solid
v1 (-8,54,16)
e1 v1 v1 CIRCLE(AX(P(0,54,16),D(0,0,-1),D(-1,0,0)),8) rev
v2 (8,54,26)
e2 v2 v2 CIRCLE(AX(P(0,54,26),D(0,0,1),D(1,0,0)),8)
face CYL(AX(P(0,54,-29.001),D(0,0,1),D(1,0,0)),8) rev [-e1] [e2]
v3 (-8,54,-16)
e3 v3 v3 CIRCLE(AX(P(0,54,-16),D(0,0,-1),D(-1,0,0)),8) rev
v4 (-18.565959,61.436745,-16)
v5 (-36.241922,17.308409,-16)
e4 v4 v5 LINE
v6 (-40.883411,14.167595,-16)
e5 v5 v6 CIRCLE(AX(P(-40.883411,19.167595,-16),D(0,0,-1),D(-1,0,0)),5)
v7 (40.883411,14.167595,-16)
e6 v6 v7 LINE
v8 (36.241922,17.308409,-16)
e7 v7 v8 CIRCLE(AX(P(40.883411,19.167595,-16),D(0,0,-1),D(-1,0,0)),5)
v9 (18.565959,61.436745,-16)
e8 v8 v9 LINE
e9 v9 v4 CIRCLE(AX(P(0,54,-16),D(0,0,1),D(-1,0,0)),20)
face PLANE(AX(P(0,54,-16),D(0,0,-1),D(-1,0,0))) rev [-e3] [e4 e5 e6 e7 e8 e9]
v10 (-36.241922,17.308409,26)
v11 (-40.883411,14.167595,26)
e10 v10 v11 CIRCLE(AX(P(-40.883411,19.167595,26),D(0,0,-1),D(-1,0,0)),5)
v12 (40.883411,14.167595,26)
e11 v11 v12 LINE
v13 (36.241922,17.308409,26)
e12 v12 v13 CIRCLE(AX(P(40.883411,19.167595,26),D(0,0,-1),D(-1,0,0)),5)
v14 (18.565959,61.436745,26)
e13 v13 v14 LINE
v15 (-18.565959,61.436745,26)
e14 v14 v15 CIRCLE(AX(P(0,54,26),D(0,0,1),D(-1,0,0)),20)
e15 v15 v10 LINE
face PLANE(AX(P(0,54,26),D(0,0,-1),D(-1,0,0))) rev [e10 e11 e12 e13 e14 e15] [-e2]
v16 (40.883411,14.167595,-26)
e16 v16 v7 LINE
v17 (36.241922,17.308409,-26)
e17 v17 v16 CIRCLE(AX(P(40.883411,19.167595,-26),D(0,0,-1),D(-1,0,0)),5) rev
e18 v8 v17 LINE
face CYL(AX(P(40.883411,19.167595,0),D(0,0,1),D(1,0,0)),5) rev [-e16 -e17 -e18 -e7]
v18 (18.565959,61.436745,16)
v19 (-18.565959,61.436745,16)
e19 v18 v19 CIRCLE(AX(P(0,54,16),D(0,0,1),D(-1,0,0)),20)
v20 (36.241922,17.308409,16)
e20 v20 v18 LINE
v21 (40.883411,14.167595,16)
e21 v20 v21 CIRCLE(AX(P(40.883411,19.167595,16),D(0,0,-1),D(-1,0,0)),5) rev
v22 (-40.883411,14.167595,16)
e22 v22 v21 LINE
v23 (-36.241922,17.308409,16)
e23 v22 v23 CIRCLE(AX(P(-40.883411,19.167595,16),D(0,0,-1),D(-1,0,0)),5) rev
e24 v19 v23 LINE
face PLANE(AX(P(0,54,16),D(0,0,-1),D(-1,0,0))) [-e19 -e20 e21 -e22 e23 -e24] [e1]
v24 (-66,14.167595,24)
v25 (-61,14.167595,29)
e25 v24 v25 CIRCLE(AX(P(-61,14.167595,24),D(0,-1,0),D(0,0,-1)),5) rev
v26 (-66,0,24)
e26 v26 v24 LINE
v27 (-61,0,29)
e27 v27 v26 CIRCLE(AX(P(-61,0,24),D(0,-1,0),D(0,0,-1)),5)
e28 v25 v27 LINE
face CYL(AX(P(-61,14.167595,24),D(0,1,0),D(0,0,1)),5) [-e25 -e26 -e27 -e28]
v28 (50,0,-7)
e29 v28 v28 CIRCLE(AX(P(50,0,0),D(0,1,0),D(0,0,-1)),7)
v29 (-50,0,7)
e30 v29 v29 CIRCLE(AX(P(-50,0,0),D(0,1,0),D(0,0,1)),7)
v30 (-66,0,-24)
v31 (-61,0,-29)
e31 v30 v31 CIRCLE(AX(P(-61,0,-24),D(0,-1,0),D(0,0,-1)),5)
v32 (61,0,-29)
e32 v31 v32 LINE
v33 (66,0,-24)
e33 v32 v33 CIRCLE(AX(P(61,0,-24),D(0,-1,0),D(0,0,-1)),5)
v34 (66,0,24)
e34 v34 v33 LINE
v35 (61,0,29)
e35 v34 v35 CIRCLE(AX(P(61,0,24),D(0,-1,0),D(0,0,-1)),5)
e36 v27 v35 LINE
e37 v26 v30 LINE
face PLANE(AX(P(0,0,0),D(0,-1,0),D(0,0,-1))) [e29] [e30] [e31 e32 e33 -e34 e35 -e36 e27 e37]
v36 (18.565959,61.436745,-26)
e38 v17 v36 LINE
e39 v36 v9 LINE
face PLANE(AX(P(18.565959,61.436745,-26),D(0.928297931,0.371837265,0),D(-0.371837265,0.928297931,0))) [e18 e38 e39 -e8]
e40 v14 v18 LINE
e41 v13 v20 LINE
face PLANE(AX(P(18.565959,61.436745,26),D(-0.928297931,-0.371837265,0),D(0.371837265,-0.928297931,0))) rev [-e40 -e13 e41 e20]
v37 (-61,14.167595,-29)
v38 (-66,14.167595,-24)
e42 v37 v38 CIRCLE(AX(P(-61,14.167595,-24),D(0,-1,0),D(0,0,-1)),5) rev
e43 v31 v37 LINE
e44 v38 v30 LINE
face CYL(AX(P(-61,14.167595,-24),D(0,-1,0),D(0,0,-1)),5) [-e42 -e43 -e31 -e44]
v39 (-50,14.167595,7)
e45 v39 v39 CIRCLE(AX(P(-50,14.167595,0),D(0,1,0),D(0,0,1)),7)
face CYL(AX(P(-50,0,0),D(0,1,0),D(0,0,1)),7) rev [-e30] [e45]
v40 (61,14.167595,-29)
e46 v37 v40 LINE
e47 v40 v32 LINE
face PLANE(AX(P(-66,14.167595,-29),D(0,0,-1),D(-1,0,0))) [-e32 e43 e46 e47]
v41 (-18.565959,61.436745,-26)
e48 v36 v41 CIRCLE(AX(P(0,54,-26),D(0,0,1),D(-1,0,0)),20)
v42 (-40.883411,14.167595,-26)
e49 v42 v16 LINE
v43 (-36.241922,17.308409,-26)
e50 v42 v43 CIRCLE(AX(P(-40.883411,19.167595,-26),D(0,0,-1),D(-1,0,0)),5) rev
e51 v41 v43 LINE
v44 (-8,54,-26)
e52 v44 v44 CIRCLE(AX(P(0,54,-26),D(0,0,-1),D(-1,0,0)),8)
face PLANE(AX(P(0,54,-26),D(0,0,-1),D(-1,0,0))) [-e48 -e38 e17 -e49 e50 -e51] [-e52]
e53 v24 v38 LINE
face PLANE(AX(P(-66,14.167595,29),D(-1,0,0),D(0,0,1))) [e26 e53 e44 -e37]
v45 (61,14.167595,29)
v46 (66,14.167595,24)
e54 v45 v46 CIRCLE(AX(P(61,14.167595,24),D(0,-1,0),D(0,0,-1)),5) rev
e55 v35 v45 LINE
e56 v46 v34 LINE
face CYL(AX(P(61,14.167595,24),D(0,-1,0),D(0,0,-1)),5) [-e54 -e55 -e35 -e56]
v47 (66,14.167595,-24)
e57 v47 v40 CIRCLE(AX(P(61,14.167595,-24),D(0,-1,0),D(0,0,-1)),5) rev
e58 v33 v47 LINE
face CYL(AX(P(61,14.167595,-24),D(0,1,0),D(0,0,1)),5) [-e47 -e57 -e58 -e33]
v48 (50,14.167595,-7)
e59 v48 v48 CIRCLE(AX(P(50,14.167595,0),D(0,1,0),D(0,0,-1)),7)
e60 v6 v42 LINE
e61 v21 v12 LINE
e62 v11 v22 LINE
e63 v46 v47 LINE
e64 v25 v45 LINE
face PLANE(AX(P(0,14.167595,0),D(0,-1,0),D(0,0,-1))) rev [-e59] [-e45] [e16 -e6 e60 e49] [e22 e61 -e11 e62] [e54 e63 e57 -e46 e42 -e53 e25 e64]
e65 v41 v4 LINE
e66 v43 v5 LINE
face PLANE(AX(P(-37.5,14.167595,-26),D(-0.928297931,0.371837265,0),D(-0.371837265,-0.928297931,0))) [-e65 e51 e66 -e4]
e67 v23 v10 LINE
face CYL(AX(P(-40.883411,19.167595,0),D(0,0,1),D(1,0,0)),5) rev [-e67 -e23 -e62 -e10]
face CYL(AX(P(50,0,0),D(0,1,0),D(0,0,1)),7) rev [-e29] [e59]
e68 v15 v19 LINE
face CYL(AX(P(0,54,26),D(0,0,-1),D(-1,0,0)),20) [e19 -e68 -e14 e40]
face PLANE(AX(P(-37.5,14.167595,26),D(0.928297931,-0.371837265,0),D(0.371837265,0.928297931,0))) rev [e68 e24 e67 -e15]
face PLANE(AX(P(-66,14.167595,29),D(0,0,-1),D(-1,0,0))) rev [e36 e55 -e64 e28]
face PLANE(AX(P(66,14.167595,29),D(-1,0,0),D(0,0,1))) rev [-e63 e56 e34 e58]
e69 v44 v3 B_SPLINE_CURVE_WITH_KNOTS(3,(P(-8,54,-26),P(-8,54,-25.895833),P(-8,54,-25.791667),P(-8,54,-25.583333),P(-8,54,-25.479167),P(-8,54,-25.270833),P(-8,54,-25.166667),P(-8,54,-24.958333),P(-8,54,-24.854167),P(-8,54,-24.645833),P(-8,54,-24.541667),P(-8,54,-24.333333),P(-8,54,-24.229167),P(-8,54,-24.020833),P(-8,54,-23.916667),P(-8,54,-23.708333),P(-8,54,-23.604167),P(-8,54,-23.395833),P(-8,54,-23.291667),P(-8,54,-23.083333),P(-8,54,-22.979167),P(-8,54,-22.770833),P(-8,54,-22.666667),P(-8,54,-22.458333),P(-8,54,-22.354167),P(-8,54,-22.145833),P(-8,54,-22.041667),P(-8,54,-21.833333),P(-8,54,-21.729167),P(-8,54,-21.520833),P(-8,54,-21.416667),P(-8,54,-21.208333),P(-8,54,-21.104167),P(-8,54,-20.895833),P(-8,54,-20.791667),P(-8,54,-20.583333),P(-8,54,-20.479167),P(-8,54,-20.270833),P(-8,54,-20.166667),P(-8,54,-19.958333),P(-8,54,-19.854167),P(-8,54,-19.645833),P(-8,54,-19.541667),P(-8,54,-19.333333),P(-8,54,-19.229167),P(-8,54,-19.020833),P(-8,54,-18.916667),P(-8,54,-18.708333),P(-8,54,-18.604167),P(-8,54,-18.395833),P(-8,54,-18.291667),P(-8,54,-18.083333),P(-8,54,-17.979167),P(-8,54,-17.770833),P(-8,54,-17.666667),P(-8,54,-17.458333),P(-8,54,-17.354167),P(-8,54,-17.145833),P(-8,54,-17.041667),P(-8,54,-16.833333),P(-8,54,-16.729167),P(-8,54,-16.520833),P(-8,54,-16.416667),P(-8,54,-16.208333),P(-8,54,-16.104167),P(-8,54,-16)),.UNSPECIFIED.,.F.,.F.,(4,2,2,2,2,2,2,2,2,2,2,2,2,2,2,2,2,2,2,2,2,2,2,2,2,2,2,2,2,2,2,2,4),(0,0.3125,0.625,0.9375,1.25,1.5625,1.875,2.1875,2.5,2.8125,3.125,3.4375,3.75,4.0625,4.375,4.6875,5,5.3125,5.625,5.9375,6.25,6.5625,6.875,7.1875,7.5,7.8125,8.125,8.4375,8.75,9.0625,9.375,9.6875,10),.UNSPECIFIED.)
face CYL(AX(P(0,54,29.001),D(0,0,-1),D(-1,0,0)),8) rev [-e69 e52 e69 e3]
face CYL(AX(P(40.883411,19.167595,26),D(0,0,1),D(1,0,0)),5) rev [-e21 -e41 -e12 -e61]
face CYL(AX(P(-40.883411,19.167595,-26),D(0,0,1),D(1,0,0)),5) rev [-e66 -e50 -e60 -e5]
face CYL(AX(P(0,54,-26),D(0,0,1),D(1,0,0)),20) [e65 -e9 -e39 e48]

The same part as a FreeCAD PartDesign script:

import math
import FreeCAD as App
import Part
import Sketcher
from FreeCAD import Vector
Q = App.Units.Quantity


def edges_at(feature, points):
    """Names of the edges that pass closest to the given points."""
    edges = feature.Shape.Edges
    near = lambda p: min(range(len(edges)), key=lambda i: edges[i].distToShape(Part.Vertex(*p))[0])
    return sorted({f"Edge{near(p) + 1}" for p in points})


def add_polygon(sketch, points):
    """Adds a closed chain of lines whose ends are joined by coincident constraints."""
    first, n = sketch.GeometryCount, len(points)
    for a, b in zip(points, points[1:] + points[:1]):
        sketch.addGeometry(Part.LineSegment(App.Vector(*a, 0), App.Vector(*b, 0)), False)
    for i in range(n):
        sketch.addConstraint(Sketcher.Constraint("Coincident", first + i, 2, first + (i + 1) % n, 1))

doc = App.newDocument("Part")
body = doc.addObject("PartDesign::Body", "Body")

sketch1 = body.newObject("Sketcher::SketchObject", "Sketch")
sketch1.AttachmentSupport = (doc.getObject("XZ_Plane"), [""])
sketch1.MapMode = "FlatFace"
add_polygon(sketch1, [(-66, -29), (-66, 29), (66, 29), (66, -29)])
sketch1.addConstraint([
    Sketcher.Constraint("Vertical", 0),
    Sketcher.Constraint("Horizontal", 1),
    Sketcher.Constraint("Vertical", 2),
    Sketcher.Constraint("Horizontal", 3),
    Sketcher.Constraint("Symmetric", 0, 2, 2, 2, -1, 1),
    Sketcher.Constraint("DistanceX", 1, 1, 1, 2, Q("132 mm")),
    Sketcher.Constraint("DistanceY", 0, 1, 0, 2, Q("58 mm")),
])
pad1 = body.newObject("PartDesign::Pad", "Pad")
pad1.Profile = sketch1
pad1.Length = 14.167595
pad1.Reversed = True

sketch2 = body.newObject("Sketcher::SketchObject", "Sketch001")
sketch2.AttachmentSupport = (doc.getObject("XZ_Plane"), [""])
sketch2.MapMode = "FlatFace"
sketch2.AttachmentOffset = App.Placement(Vector(0, 0, -14.167595), App.Rotation())
sketch2.addGeometry([
    Part.Circle(Vector(-50, 0, 0), Vector(0, 0, 1), 7),
    Part.Circle(Vector(50, 0, 0), Vector(0, 0, 1), 7),
], False)
sketch2.addConstraint([
    Sketcher.Constraint("Equal", 0, 1),
    Sketcher.Constraint("Symmetric", 0, 3, 1, 3, -1, 1),
    Sketcher.Constraint("PointOnObject", 0, 3, -1),
    Sketcher.Constraint("Diameter", 0, Q("14 mm")),
    Sketcher.Constraint("DistanceX", 0, 3, -1, 1, Q("50 mm")),
])
pocket1 = body.newObject("PartDesign::Pocket", "Pocket")
pocket1.Profile = sketch2
pocket1.Type = "ThroughAll"
pocket1.Reversed = True

sketch3 = body.newObject("Sketcher::SketchObject", "Sketch002")
sketch3.AttachmentSupport = (doc.getObject("XY_Plane"), [""])
sketch3.MapMode = "FlatFace"
sketch3.AttachmentOffset = App.Placement(Vector(0, 0, 16), App.Rotation())
sketch3.addGeometry([
    Part.LineSegment(Vector(-38, 14, 0), Vector(38, 14, 0)),
    Part.LineSegment(Vector(38, 14, 0), Vector(19, 61, 0)),
    Part.ArcOfCircle(Part.Circle(Vector(0, 54, 0), Vector(0, 0, 1), 20), math.radians(22), math.radians(158)),
    Part.LineSegment(Vector(-19, 61, 0), Vector(-38, 14, 0)),
], False)
sketch3.addConstraint([
    Sketcher.Constraint("Coincident", 0, 2, 1, 1),
    Sketcher.Constraint("Tangent", 1, 2, 2, 1),
    Sketcher.Constraint("Tangent", 2, 2, 3, 1),
    Sketcher.Constraint("Coincident", 3, 2, 0, 1),
    Sketcher.Constraint("Horizontal", 0),
    Sketcher.Constraint("Symmetric", 1, 2, 2, 2, -2),
    Sketcher.Constraint("Radius", 2, Q("20 mm")),
    Sketcher.Constraint("DistanceX", 0, 1, 0, 2, Q("75 mm")),
    Sketcher.Constraint("DistanceY", -1, 1, 2, 3, Q("54 mm")),
    Sketcher.Constraint("DistanceX", -1, 1, 1, 2, Q("18.565959 mm")),
])
pad2 = body.newObject("PartDesign::Pad", "Pad001")
pad2.Profile = sketch3
pad2.Length = 10

sketch4 = body.newObject("Sketcher::SketchObject", "Sketch003")
sketch4.AttachmentSupport = (doc.getObject("XY_Plane"), [""])
sketch4.MapMode = "FlatFace"
sketch4.AttachmentOffset = App.Placement(Vector(0, 0, 26), App.Rotation())
sketch4.addGeometry(Part.Circle(Vector(0, 54, 0), Vector(0, 0, 1), 8), False)
sketch4.addConstraint([
    Sketcher.Constraint("PointOnObject", 0, 3, -2),
    Sketcher.Constraint("Diameter", 0, Q("16 mm")),
    Sketcher.Constraint("DistanceY", -1, 1, 0, 3, Q("54 mm")),
])
pocket2 = body.newObject("PartDesign::Pocket", "Pocket001")
pocket2.Profile = sketch4
pocket2.Type = "UpToFirst"

sketch5 = body.newObject("Sketcher::SketchObject", "Sketch004")
sketch5.AttachmentSupport = (doc.getObject("XY_Plane"), [""])
sketch5.MapMode = "FlatFace"
sketch5.AttachmentOffset = App.Placement(Vector(0, 0, -26), App.Rotation())
sketch5.addGeometry([
    Part.LineSegment(Vector(-38, 14, 0), Vector(38, 14, 0)),
    Part.LineSegment(Vector(38, 14, 0), Vector(19, 61, 0)),
    Part.ArcOfCircle(Part.Circle(Vector(0, 54, 0), Vector(0, 0, 1), 20), math.radians(22), math.radians(158)),
    Part.LineSegment(Vector(-19, 61, 0), Vector(-38, 14, 0)),
], False)
sketch5.addConstraint([
    Sketcher.Constraint("Coincident", 0, 2, 1, 1),
    Sketcher.Constraint("Tangent", 1, 2, 2, 1),
    Sketcher.Constraint("Tangent", 2, 2, 3, 1),
    Sketcher.Constraint("Coincident", 3, 2, 0, 1),
    Sketcher.Constraint("Horizontal", 0),
    Sketcher.Constraint("Symmetric", 1, 2, 2, 2, -2),
    Sketcher.Constraint("Radius", 2, Q("20 mm")),
    Sketcher.Constraint("DistanceX", 0, 1, 0, 2, Q("75 mm")),
    Sketcher.Constraint("DistanceY", -1, 1, 2, 3, Q("54 mm")),
    Sketcher.Constraint("DistanceX", -1, 1, 1, 2, Q("18.565959 mm")),
])
pad3 = body.newObject("PartDesign::Pad", "Pad002")
pad3.Profile = sketch5
pad3.Length = 10

sketch6 = body.newObject("Sketcher::SketchObject", "Sketch005")
sketch6.AttachmentSupport = (doc.getObject("XY_Plane"), [""])
sketch6.MapMode = "FlatFace"
sketch6.AttachmentOffset = App.Placement(Vector(0, 0, -26), App.Rotation())
sketch6.addGeometry(Part.Circle(Vector(0, 54, 0), Vector(0, 0, 1), 8), False)
sketch6.addConstraint([
    Sketcher.Constraint("PointOnObject", 0, 3, -2),
    Sketcher.Constraint("Diameter", 0, Q("16 mm")),
    Sketcher.Constraint("DistanceY", -1, 1, 0, 3, Q("54 mm")),
])
pocket3 = body.newObject("PartDesign::Pocket", "Pocket002")
pocket3.Profile = sketch6
pocket3.Type = "UpToFirst"
pocket3.Reversed = True
doc.recompute()

fillet = body.newObject("PartDesign::Fillet", "Fillet")
fillet.Base = (pocket3, edges_at(pocket3, [
    (37.5, 14.168, 21),
    (-37.5, 14.168, 21),
    (37.5, 14.168, -21),
    (-37.5, 14.168, -21),
    (-66, 7.084, 29),
    (66, 7.084, 29),
    (66, 7.084, -29),
    (-66, 7.084, -29),
]))
fillet.Radius = 5

doc.recompute()
